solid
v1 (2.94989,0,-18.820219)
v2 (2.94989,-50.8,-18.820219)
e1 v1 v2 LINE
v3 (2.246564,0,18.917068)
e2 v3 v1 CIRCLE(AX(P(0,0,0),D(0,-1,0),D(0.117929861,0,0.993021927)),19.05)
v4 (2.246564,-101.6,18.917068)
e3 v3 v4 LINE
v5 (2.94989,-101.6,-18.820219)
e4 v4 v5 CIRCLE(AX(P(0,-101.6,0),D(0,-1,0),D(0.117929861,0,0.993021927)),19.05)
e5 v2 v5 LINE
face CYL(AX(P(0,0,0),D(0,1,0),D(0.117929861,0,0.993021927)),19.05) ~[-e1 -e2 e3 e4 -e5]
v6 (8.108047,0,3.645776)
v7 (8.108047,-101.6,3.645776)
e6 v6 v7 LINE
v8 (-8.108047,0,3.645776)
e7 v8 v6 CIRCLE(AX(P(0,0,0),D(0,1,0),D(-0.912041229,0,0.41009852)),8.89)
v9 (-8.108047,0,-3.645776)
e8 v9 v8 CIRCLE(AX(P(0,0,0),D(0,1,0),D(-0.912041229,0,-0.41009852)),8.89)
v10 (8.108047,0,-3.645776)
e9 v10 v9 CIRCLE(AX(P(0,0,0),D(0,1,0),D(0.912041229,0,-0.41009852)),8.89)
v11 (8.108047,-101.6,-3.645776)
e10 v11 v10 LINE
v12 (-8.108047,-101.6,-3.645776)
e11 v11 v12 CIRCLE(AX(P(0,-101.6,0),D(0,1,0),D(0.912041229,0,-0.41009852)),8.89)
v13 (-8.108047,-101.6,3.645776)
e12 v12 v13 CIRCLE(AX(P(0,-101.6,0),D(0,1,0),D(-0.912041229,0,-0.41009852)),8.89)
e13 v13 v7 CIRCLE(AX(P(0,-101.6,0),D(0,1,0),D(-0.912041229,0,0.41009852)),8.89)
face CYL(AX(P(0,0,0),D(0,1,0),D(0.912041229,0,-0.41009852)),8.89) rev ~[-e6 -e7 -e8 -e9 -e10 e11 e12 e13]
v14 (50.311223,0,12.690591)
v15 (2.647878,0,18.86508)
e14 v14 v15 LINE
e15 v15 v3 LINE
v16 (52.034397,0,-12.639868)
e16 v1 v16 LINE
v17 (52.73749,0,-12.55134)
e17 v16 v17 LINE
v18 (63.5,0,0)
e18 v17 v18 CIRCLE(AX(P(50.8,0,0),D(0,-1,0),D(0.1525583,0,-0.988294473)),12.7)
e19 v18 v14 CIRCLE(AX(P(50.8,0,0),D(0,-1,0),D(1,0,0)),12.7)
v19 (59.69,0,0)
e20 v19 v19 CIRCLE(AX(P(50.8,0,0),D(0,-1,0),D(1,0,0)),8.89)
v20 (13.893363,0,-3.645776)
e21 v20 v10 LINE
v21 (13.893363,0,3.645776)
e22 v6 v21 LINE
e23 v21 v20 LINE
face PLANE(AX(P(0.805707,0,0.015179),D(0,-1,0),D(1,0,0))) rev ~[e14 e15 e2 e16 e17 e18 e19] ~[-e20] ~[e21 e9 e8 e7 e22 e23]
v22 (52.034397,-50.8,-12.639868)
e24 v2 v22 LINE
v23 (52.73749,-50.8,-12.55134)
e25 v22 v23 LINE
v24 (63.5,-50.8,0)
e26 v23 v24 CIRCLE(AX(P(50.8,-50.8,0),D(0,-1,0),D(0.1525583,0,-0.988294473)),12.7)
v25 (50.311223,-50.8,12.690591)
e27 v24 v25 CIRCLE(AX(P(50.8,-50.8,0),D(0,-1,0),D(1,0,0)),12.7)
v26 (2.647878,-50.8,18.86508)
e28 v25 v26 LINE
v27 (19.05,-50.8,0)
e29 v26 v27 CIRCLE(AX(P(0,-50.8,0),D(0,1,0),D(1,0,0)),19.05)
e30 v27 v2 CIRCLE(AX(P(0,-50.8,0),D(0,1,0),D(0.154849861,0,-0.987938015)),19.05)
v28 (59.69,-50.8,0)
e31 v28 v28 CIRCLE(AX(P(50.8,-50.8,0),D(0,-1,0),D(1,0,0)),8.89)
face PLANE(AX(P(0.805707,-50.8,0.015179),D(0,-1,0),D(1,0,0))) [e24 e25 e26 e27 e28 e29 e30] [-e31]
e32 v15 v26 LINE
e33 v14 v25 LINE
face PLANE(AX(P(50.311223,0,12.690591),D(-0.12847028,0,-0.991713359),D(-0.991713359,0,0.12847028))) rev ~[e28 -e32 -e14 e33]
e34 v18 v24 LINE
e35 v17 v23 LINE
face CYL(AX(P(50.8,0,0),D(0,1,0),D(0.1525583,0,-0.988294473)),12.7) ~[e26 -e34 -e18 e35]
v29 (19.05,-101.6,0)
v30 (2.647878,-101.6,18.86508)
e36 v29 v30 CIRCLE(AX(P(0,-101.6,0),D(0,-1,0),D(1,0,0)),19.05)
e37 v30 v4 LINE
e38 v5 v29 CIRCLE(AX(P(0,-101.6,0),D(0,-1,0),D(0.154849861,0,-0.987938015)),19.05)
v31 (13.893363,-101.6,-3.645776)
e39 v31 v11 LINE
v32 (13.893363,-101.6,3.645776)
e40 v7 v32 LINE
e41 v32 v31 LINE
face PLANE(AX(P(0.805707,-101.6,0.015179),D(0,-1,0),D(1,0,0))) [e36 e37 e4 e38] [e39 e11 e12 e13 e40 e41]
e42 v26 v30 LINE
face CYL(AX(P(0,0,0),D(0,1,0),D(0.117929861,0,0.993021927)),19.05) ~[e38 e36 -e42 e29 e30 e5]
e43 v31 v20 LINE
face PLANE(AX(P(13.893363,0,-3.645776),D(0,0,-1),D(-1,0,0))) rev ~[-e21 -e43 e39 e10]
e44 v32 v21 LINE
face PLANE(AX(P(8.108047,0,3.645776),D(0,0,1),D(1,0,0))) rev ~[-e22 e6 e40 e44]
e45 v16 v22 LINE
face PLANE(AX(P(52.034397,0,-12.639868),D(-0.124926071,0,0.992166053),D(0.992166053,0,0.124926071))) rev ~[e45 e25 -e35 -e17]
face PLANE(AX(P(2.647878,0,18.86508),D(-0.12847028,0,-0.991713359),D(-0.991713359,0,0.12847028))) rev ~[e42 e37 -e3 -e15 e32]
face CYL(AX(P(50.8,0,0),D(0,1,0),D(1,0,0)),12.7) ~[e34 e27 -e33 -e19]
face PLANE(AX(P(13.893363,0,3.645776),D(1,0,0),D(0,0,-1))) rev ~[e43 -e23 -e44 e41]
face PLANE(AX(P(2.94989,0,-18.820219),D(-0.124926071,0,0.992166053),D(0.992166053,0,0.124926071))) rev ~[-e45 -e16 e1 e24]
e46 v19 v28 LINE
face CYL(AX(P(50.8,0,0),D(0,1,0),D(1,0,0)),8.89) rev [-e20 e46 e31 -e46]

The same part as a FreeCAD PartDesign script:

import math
import FreeCAD as App
import Part
import Sketcher
from FreeCAD import Vector
Q = App.Units.Quantity

doc = App.newDocument("Part")
params = doc.addObject("Spreadsheet::Sheet", "Params")
for row, (alias, value) in enumerate([
    ("sketch1_diameter", "0.7 in"),
    ("sketch1_radius", "0.5 in"),
    ("sketch1_radius2", "0.75 in"),
    ("pad1_length", "2 in"),
    ("sketch2_radius", "0.75 in"),
    ("sketch2_radius2", "0.35 in"),
    ("pad2_length", "4 in"),
], start=1):
    params.set(f"A{row}", alias)
    params.set(f"B{row}", "=" + value)
    params.setAlias(f"B{row}", alias)

body = doc.addObject("PartDesign::Body", "Body")

# Sketch on XZ plane
sketch1 = doc.addObject("Sketcher::SketchObject", "Sketch")
body.addObject(sketch1)
sketch1.AttachmentSupport = (doc.XZ_Plane, [""])
sketch1.MapMode = "FlatFace"
sketch1.addGeometry([
    Part.LineSegment(Vector(2.65, 18.87, 0), Vector(2.25, 18.92, 0)),  # 0
    Part.ArcOfCircle(Part.Circle(Vector(0, 0, 0), Vector(0, 0, 1), 19.05), math.radians(83), math.radians(279)),  # 1
    Part.LineSegment(Vector(2.95, -18.82, 0), Vector(52.03, -12.64, 0)),  # 2
    Part.LineSegment(Vector(52.03, -12.64, 0), Vector(52.74, -12.55, 0)),  # 3
    Part.ArcOfCircle(Part.Circle(Vector(50.8, 0, 0), Vector(0, 0, 1), 12.7), math.radians(-81), math.radians(0)),  # 4
    Part.ArcOfCircle(Part.Circle(Vector(50.8, 0, 0), Vector(0, 0, 1), 12.7), math.radians(0), math.radians(92)),  # 5
    Part.LineSegment(Vector(50.31, 12.69, 0), Vector(2.65, 18.87, 0)),  # 6
    Part.ArcOfCircle(Part.Circle(Vector(0, 0, 0), Vector(0, 0, 1), 8.89), math.radians(-156), math.radians(-24)),  # 7
    Part.ArcOfCircle(Part.Circle(Vector(0, 0, 0), Vector(0, 0, 1), 8.89), math.radians(156), math.radians(204)),  # 8
    Part.ArcOfCircle(Part.Circle(Vector(0, 0, 0), Vector(0, 0, 1), 8.89), math.radians(24), math.radians(156)),  # 9
    Part.LineSegment(Vector(8.11, 3.65, 0), Vector(13.89, 3.65, 0)),  # 10
    Part.LineSegment(Vector(13.89, 3.65, 0), Vector(13.89, -3.65, 0)),  # 11
    Part.LineSegment(Vector(13.89, -3.65, 0), Vector(8.11, -3.65, 0)),  # 12
    Part.Circle(Vector(50.8, 0, 0), Vector(0, 0, 1), 8.89),  # 13
], False)
sketch1.addConstraint([
    Sketcher.Constraint("Coincident", 0, 2, 1, 1),
    Sketcher.Constraint("Coincident", 1, 2, 2, 1),
    Sketcher.Constraint("Coincident", 2, 2, 3, 1),
    Sketcher.Constraint("Coincident", 3, 2, 4, 1),
    Sketcher.Constraint("Tangent", 4, 2, 5, 1),
    Sketcher.Constraint("Coincident", 5, 2, 6, 1),
    Sketcher.Constraint("Coincident", 6, 2, 0, 1),
    Sketcher.Constraint("Tangent", 7, 1, 8, 2),
    Sketcher.Constraint("Tangent", 8, 1, 9, 2),
    Sketcher.Constraint("Coincident", 9, 1, 10, 1),
    Sketcher.Constraint("Coincident", 10, 2, 11, 1),
    Sketcher.Constraint("Coincident", 11, 2, 12, 1),
    Sketcher.Constraint("Coincident", 12, 2, 7, 2),
    Sketcher.Constraint("Horizontal", 10),
    Sketcher.Constraint("Vertical", 11),
    Sketcher.Constraint("Horizontal", 12),
    Sketcher.Constraint("Coincident", 1, 3, -1, 1),
    Sketcher.Constraint("Coincident", 7, 3, -1, 1),
    Sketcher.Constraint("Coincident", 9, 3, -1, 1),
    Sketcher.Constraint("Coincident", 13, 3, 4, 3),
    Sketcher.Constraint("Equal", 4, 5),
    Sketcher.Constraint("Equal", 9, 13),
    Sketcher.Constraint("PointOnObject", 4, 3, -1),
    Sketcher.Constraint("PointOnObject", 4, 2, -1),
    Sketcher.Constraint("Parallel", 2, 3),
    Sketcher.Constraint("Parallel", 0, 6),
    Sketcher.Constraint("Horizontal", 8, 1, 9, 1),
    Sketcher.Constraint("Horizontal", 7, 1, 11, 2),
    Sketcher.Constraint("Vertical", 7, 1, 8, 1),
    Sketcher.Constraint("Diameter", 13, Q("0.7 in")),
    Sketcher.Constraint("Radius", 4, Q("0.5 in")),
    Sketcher.Constraint("Radius", 1, Q("0.75 in")),
    Sketcher.Constraint("DistanceX", -1, 1, 4, 3, Q("2 in")),
    Sketcher.Constraint("DistanceY", 11, 2, 11, 1, Q("7.291552 mm")),
    Sketcher.Constraint("DistanceX", 1, 2, 3, 2, Q("49.787601 mm")),
    Sketcher.Constraint("Distance", 2, Q("49.472068 mm")),
    Sketcher.Constraint("DistanceX", 10, 1, 10, 2, Q("5.785317 mm")),
    Sketcher.Constraint("DistanceX", -1, 1, 1, 2, Q("2.94989 mm")),
    Sketcher.Constraint("DistanceY", -1, 1, 5, 2, Q("12.690591 mm")),
    Sketcher.Constraint("DistanceY", -1, 1, 6, 2, Q("18.86508 mm")),
    Sketcher.Constraint("DistanceX", 6, 2, 9, 1, Q("5.460169 mm")),
])
sketch1.setExpression("Constraints[29]", "Params.sketch1_diameter")
sketch1.setExpression("Constraints[30]", "Params.sketch1_radius")
sketch1.setExpression("Constraints[31]", "Params.sketch1_radius2")
pad1 = doc.addObject("PartDesign::Pad", "Pad")
body.addObject(pad1)
pad1.Profile = sketch1
pad1.setExpression("Length", "Params.pad1_length")

# Sketch on XZ plane
sketch2 = doc.addObject("Sketcher::SketchObject", "Sketch001")
body.addObject(sketch2)
sketch2.AttachmentSupport = (doc.XZ_Plane, [""])
sketch2.MapMode = "FlatFace"
sketch2.addGeometry([
    Part.LineSegment(Vector(2.65, 18.87, 0), Vector(2.25, 18.92, 0)),  # 0
    Part.ArcOfCircle(Part.Circle(Vector(0, 0, 0), Vector(0, 0, 1), 19.05), math.radians(83), math.radians(279)),  # 1
    Part.ArcOfCircle(Part.Circle(Vector(0, 0, 0), Vector(0, 0, 1), 19.05), math.radians(-81), math.radians(0)),  # 2
    Part.ArcOfCircle(Part.Circle(Vector(0, 0, 0), Vector(0, 0, 1), 19.05), math.radians(0), math.radians(82)),  # 3
    Part.ArcOfCircle(Part.Circle(Vector(0, 0, 0), Vector(0, 0, 1), 8.89), math.radians(-156), math.radians(-24)),  # 4
    Part.ArcOfCircle(Part.Circle(Vector(0, 0, 0), Vector(0, 0, 1), 8.89), math.radians(156), math.radians(204)),  # 5
    Part.ArcOfCircle(Part.Circle(Vector(0, 0, 0), Vector(0, 0, 1), 8.89), math.radians(24), math.radians(156)),  # 6
    Part.LineSegment(Vector(8.11, 3.65, 0), Vector(13.89, 3.65, 0)),  # 7
    Part.LineSegment(Vector(13.89, 3.65, 0), Vector(13.89, -3.65, 0)),  # 8
    Part.LineSegment(Vector(13.89, -3.65, 0), Vector(8.11, -3.65, 0)),  # 9
], False)
sketch2.addConstraint([
    Sketcher.Constraint("Coincident", 0, 2, 1, 1),
    Sketcher.Constraint("Tangent", 1, 2, 2, 1),
    Sketcher.Constraint("Tangent", 2, 2, 3, 1),
    Sketcher.Constraint("Coincident", 3, 2, 0, 1),
    Sketcher.Constraint("Tangent", 4, 1, 5, 2),
    Sketcher.Constraint("Tangent", 5, 1, 6, 2),
    Sketcher.Constraint("Coincident", 6, 1, 7, 1),
    Sketcher.Constraint("Coincident", 7, 2, 8, 1),
    Sketcher.Constraint("Coincident", 8, 2, 9, 1),
    Sketcher.Constraint("Coincident", 9, 2, 4, 2),
    Sketcher.Constraint("Horizontal", 7),
    Sketcher.Constraint("Vertical", 8),
    Sketcher.Constraint("Horizontal", 9),
    Sketcher.Constraint("Coincident", 1, 3, -1, 1),
    Sketcher.Constraint("Coincident", 3, 3, -1, 1),
    Sketcher.Constraint("Coincident", 4, 3, -1, 1),
    Sketcher.Constraint("Coincident", 6, 3, -1, 1),
    Sketcher.Constraint("PointOnObject", 2, 2, -1),
    Sketcher.Constraint("Horizontal", 5, 1, 6, 1),
    Sketcher.Constraint("Horizontal", 4, 1, 8, 2),
    Sketcher.Constraint("Vertical", 4, 1, 5, 1),
    Sketcher.Constraint("Radius", 1, Q("0.75 in")),
    Sketcher.Constraint("Radius", 4, Q("0.35 in")),
    Sketcher.Constraint("DistanceY", 8, 2, 8, 1, Q("7.291552 mm")),
    Sketcher.Constraint("DistanceX", 7, 1, 7, 2, Q("5.785317 mm")),
    Sketcher.Constraint("DistanceX", -1, 1, 1, 2, Q("2.94989 mm")),
    Sketcher.Constraint("DistanceY", -1, 1, 3, 2, Q("18.86508 mm")),
    Sketcher.Constraint("Distance", 0, Q("0.404667 mm")),
])
sketch2.setExpression("Constraints[21]", "Params.sketch2_radius")
sketch2.setExpression("Constraints[22]", "Params.sketch2_radius2")
pad2 = doc.addObject("PartDesign::Pad", "Pad001")
body.addObject(pad2)
pad2.Profile = sketch2
pad2.setExpression("Length", "Params.pad2_length")

doc.recompute()
